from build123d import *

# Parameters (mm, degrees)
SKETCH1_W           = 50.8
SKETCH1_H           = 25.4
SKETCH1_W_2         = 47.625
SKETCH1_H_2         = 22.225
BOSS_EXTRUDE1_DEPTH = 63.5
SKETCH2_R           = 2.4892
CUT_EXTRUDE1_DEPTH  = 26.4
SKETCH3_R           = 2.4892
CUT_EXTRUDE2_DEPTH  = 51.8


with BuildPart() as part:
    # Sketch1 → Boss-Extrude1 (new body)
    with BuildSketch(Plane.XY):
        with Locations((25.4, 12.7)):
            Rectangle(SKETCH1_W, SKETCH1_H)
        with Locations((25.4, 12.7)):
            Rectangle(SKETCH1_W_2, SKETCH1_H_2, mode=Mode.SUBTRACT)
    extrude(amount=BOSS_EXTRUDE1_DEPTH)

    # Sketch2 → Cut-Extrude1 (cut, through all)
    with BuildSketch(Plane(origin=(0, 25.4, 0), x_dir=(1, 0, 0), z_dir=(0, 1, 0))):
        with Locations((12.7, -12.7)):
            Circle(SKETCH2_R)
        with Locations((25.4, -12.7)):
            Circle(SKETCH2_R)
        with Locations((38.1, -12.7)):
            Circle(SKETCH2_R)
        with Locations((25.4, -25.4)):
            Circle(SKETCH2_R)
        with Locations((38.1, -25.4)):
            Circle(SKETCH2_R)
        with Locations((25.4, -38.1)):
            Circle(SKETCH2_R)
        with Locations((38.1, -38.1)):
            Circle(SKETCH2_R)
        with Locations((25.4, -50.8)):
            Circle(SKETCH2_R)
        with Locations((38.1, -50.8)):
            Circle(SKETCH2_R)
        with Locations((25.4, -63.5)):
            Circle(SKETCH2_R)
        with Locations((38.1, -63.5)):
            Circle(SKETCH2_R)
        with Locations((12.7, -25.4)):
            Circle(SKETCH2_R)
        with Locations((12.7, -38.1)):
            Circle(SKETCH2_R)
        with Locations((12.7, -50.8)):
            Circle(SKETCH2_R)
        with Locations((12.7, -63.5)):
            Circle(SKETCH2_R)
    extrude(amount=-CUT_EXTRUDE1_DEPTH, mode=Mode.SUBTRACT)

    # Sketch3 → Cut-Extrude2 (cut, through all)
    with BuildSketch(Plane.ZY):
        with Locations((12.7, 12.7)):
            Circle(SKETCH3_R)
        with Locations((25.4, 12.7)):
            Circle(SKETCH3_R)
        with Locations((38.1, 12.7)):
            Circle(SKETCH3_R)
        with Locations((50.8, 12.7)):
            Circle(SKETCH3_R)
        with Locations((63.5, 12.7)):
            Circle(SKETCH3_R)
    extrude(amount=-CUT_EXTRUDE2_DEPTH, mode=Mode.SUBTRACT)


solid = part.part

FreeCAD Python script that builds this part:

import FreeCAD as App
import Part
import Sketcher
Q = App.Units.Quantity

doc = App.newDocument("Part")
body = doc.addObject("PartDesign::Body", "Body")

sketch1 = doc.addObject("Sketcher::SketchObject", "Sketch")
body.addObject(sketch1)
sketch1.AttachmentSupport = (doc.XY_Plane, [""])
sketch1.MapMode = "FlatFace"
sketch1.addGeometry(Part.LineSegment(App.Vector(0, 25, 0), App.Vector(0, 0, 0)), False)
sketch1.addGeometry(Part.LineSegment(App.Vector(0, 0, 0), App.Vector(51, 0, 0)), False)
sketch1.addGeometry(Part.LineSegment(App.Vector(51, 0, 0), App.Vector(51, 25, 0)), False)
sketch1.addGeometry(Part.LineSegment(App.Vector(51, 25, 0), App.Vector(0, 25, 0)), False)
sketch1.addGeometry(Part.LineSegment(App.Vector(49, 2, 0), App.Vector(2, 2, 0)), False)
sketch1.addGeometry(Part.LineSegment(App.Vector(2, 2, 0), App.Vector(2, 24, 0)), False)
sketch1.addGeometry(Part.LineSegment(App.Vector(2, 24, 0), App.Vector(49, 24, 0)), False)
sketch1.addGeometry(Part.LineSegment(App.Vector(49, 24, 0), App.Vector(49, 2, 0)), False)
sketch1.addConstraint(Sketcher.Constraint("Coincident", 0, 2, 1, 1))
sketch1.addConstraint(Sketcher.Constraint("Coincident", 1, 2, 2, 1))
sketch1.addConstraint(Sketcher.Constraint("Coincident", 2, 2, 3, 1))
sketch1.addConstraint(Sketcher.Constraint("Coincident", 3, 2, 0, 1))
sketch1.addConstraint(Sketcher.Constraint("Coincident", 4, 2, 5, 1))
sketch1.addConstraint(Sketcher.Constraint("Coincident", 5, 2, 6, 1))
sketch1.addConstraint(Sketcher.Constraint("Coincident", 6, 2, 7, 1))
sketch1.addConstraint(Sketcher.Constraint("Coincident", 7, 2, 4, 1))
sketch1.addConstraint(Sketcher.Constraint("Vertical", 0))
sketch1.addConstraint(Sketcher.Constraint("Horizontal", 1))
sketch1.addConstraint(Sketcher.Constraint("Vertical", 2))
sketch1.addConstraint(Sketcher.Constraint("Horizontal", 3))
sketch1.addConstraint(Sketcher.Constraint("Horizontal", 4))
sketch1.addConstraint(Sketcher.Constraint("Vertical", 5))
sketch1.addConstraint(Sketcher.Constraint("Horizontal", 6))
sketch1.addConstraint(Sketcher.Constraint("Vertical", 7))
sketch1.addConstraint(Sketcher.Constraint("Coincident", 0, 2, -1, 1))
sketch1.addConstraint(Sketcher.Constraint("DistanceX", 1, 1, 1, 2, Q("2 in")))
sketch1.addConstraint(Sketcher.Constraint("DistanceY", 0, 2, 0, 1, Q("1 in")))
sketch1.addConstraint(Sketcher.Constraint("DistanceX", 4, 2, 4, 1, Q("1.875 in")))
sketch1.addConstraint(Sketcher.Constraint("DistanceY", 5, 1, 5, 2, Q("0.875 in")))
sketch1.addConstraint(Sketcher.Constraint("DistanceX", -1, 1, 4, 2, Q("0.0625 in")))
sketch1.addConstraint(Sketcher.Constraint("DistanceY", -1, 1, 4, 2, Q("0.0625 in")))
pad1 = doc.addObject("PartDesign::Pad", "Pad")
body.addObject(pad1)
pad1.Profile = sketch1
pad1.Length = Q("2.5 in")

sketch2 = doc.addObject("Sketcher::SketchObject", "Sketch001")
body.addObject(sketch2)
sketch2.AttachmentSupport = (doc.XZ_Plane, [""])
sketch2.MapMode = "FlatFace"
sketch2.AttachmentOffset = App.Placement(App.Vector(0, 0, -1 * 25.4), App.Rotation())
sketch2.addGeometry(Part.Circle(App.Vector(12.7, 12.7, 0), App.Vector(0, 0, 1), 2.5), False)
sketch2.addGeometry(Part.Circle(App.Vector(25.4, 12.7, 0), App.Vector(0, 0, 1), 2.5), False)
sketch2.addGeometry(Part.Circle(App.Vector(38.1, 12.7, 0), App.Vector(0, 0, 1), 2.5), False)
sketch2.addGeometry(Part.Circle(App.Vector(25.4, 25.4, 0), App.Vector(0, 0, 1), 2.5), False)
sketch2.addGeometry(Part.Circle(App.Vector(38.1, 25.4, 0), App.Vector(0, 0, 1), 2.5), False)
sketch2.addGeometry(Part.Circle(App.Vector(25.4, 38.1, 0), App.Vector(0, 0, 1), 2.5), False)
sketch2.addGeometry(Part.Circle(App.Vector(38.1, 38.1, 0), App.Vector(0, 0, 1), 2.5), False)
sketch2.addGeometry(Part.Circle(App.Vector(25.4, 50.8, 0), App.Vector(0, 0, 1), 2.5), False)
sketch2.addGeometry(Part.Circle(App.Vector(38.1, 50.8, 0), App.Vector(0, 0, 1), 2.5), False)
sketch2.addGeometry(Part.Circle(App.Vector(25.4, 63.5, 0), App.Vector(0, 0, 1), 2.5), False)
sketch2.addGeometry(Part.Circle(App.Vector(38.1, 63.5, 0), App.Vector(0, 0, 1), 2.5), False)
sketch2.addGeometry(Part.Circle(App.Vector(12.7, 25.4, 0), App.Vector(0, 0, 1), 2.5), False)
sketch2.addGeometry(Part.Circle(App.Vector(12.7, 38.1, 0), App.Vector(0, 0, 1), 2.5), False)
sketch2.addGeometry(Part.Circle(App.Vector(12.7, 50.8, 0), App.Vector(0, 0, 1), 2.5), False)
sketch2.addGeometry(Part.Circle(App.Vector(12.7, 63.5, 0), App.Vector(0, 0, 1), 2.5), False)
sketch2.addConstraint(Sketcher.Constraint("Equal", 0, 1))
sketch2.addConstraint(Sketcher.Constraint("Equal", 1, 2))
sketch2.addConstraint(Sketcher.Constraint("Equal", 2, 3))
sketch2.addConstraint(Sketcher.Constraint("Equal", 3, 4))
sketch2.addConstraint(Sketcher.Constraint("Equal", 4, 5))
sketch2.addConstraint(Sketcher.Constraint("Equal", 5, 6))
sketch2.addConstraint(Sketcher.Constraint("Equal", 6, 7))
sketch2.addConstraint(Sketcher.Constraint("Equal", 7, 8))
sketch2.addConstraint(Sketcher.Constraint("Equal", 8, 9))
sketch2.addConstraint(Sketcher.Constraint("Equal", 9, 10))
sketch2.addConstraint(Sketcher.Constraint("Equal", 10, 11))
sketch2.addConstraint(Sketcher.Constraint("Equal", 11, 12))
sketch2.addConstraint(Sketcher.Constraint("Equal", 12, 13))
sketch2.addConstraint(Sketcher.Constraint("Equal", 13, 14))
sketch2.addConstraint(Sketcher.Constraint("Horizontal", 0, 3, 1, 3))
sketch2.addConstraint(Sketcher.Constraint("Horizontal", 1, 3, 2, 3))
sketch2.addConstraint(Sketcher.Constraint("Horizontal", 3, 3, 4, 3))
sketch2.addConstraint(Sketcher.Constraint("Horizontal", 5, 3, 6, 3))
sketch2.addConstraint(Sketcher.Constraint("Horizontal", 7, 3, 8, 3))
sketch2.addConstraint(Sketcher.Constraint("Horizontal", 9, 3, 10, 3))
sketch2.addConstraint(Sketcher.Constraint("Horizontal", 4, 3, 11, 3))
sketch2.addConstraint(Sketcher.Constraint("Horizontal", 6, 3, 12, 3))
sketch2.addConstraint(Sketcher.Constraint("Horizontal", 8, 3, 13, 3))
sketch2.addConstraint(Sketcher.Constraint("Horizontal", 10, 3, 14, 3))
sketch2.addConstraint(Sketcher.Constraint("Vertical", 1, 3, 3, 3))
sketch2.addConstraint(Sketcher.Constraint("Vertical", 2, 3, 4, 3))
sketch2.addConstraint(Sketcher.Constraint("Vertical", 3, 3, 5, 3))
sketch2.addConstraint(Sketcher.Constraint("Vertical", 4, 3, 6, 3))
sketch2.addConstraint(Sketcher.Constraint("Vertical", 5, 3, 7, 3))
sketch2.addConstraint(Sketcher.Constraint("Vertical", 6, 3, 8, 3))
sketch2.addConstraint(Sketcher.Constraint("Vertical", 7, 3, 9, 3))
sketch2.addConstraint(Sketcher.Constraint("Vertical", 8, 3, 10, 3))
sketch2.addConstraint(Sketcher.Constraint("Vertical", 0, 3, 11, 3))
sketch2.addConstraint(Sketcher.Constraint("Vertical", 11, 3, 12, 3))
sketch2.addConstraint(Sketcher.Constraint("Vertical", 12, 3, 13, 3))
sketch2.addConstraint(Sketcher.Constraint("Vertical", 13, 3, 14, 3))
sketch2.addConstraint(Sketcher.Constraint("Diameter", 0, Q("0.196 in")))
sketch2.addConstraint(Sketcher.Constraint("DistanceX", -1, 1, 1, 3, Q("1 in")))
sketch2.addConstraint(Sketcher.Constraint("DistanceY", -1, 1, 3, 3, Q("1 in")))
sketch2.addConstraint(Sketcher.Constraint("DistanceY", -1, 1, 7, 3, Q("2 in")))
sketch2.addConstraint(Sketcher.Constraint("DistanceX", 0, 3, 2, 3, Q("1 in")))
sketch2.addConstraint(Sketcher.Constraint("DistanceY", 1, 3, 5, 3, Q("1 in")))
sketch2.addConstraint(Sketcher.Constraint("DistanceY", 5, 3, 9, 3, Q("1 in")))
sketch2.addConstraint(Sketcher.Constraint("DistanceX", -1, 1, 0, 3, Q("0.5 in")))
sketch2.addConstraint(Sketcher.Constraint("DistanceY", -1, 1, 0, 3, Q("0.5 in")))
pocket1 = doc.addObject("PartDesign::Pocket", "Pocket")
body.addObject(pocket1)
pocket1.Profile = sketch2
pocket1.Type = "ThroughAll"
pocket1.Reversed = True

sketch3 = doc.addObject("Sketcher::SketchObject", "Sketch002")
body.addObject(sketch3)
sketch3.AttachmentSupport = (doc.YZ_Plane, [""])
sketch3.MapMode = "FlatFace"
sketch3.addGeometry(Part.Circle(App.Vector(12.7, 12.7, 0), App.Vector(0, 0, 1), 2.5), False)
sketch3.addGeometry(Part.Circle(App.Vector(12.7, 25.4, 0), App.Vector(0, 0, 1), 2.5), False)
sketch3.addGeometry(Part.Circle(App.Vector(12.7, 38.1, 0), App.Vector(0, 0, 1), 2.5), False)
sketch3.addGeometry(Part.Circle(App.Vector(12.7, 50.8, 0), App.Vector(0, 0, 1), 2.5), False)
sketch3.addGeometry(Part.Circle(App.Vector(12.7, 63.5, 0), App.Vector(0, 0, 1), 2.5), False)
sketch3.addConstraint(Sketcher.Constraint("Equal", 0, 1))
sketch3.addConstraint(Sketcher.Constraint("Equal", 1, 2))
sketch3.addConstraint(Sketcher.Constraint("Equal", 2, 3))
sketch3.addConstraint(Sketcher.Constraint("Equal", 3, 4))
sketch3.addConstraint(Sketcher.Constraint("Vertical", 0, 3, 1, 3))
sketch3.addConstraint(Sketcher.Constraint("Vertical", 1, 3, 2, 3))
sketch3.addConstraint(Sketcher.Constraint("Vertical", 2, 3, 3, 3))
sketch3.addConstraint(Sketcher.Constraint("Vertical", 3, 3, 4, 3))
sketch3.addConstraint(Sketcher.Constraint("Diameter", 0, Q("0.196 in")))
sketch3.addConstraint(Sketcher.Constraint("DistanceY", -1, 1, 1, 3, Q("1 in")))
sketch3.addConstraint(Sketcher.Constraint("DistanceY", -1, 1, 3, 3, Q("2 in")))
sketch3.addConstraint(Sketcher.Constraint("DistanceY", 0, 3, 2, 3, Q("1 in")))
sketch3.addConstraint(Sketcher.Constraint("DistanceY", 2, 3, 4, 3, Q("1 in")))
sketch3.addConstraint(Sketcher.Constraint("DistanceX", -1, 1, 0, 3, Q("0.5 in")))
sketch3.addConstraint(Sketcher.Constraint("DistanceY", -1, 1, 0, 3, Q("0.5 in")))
pocket2 = doc.addObject("PartDesign::Pocket", "Pocket001")
body.addObject(pocket2)
pocket2.Profile = sketch3
pocket2.Type = "ThroughAll"
pocket2.Reversed = True

doc.recompute()
